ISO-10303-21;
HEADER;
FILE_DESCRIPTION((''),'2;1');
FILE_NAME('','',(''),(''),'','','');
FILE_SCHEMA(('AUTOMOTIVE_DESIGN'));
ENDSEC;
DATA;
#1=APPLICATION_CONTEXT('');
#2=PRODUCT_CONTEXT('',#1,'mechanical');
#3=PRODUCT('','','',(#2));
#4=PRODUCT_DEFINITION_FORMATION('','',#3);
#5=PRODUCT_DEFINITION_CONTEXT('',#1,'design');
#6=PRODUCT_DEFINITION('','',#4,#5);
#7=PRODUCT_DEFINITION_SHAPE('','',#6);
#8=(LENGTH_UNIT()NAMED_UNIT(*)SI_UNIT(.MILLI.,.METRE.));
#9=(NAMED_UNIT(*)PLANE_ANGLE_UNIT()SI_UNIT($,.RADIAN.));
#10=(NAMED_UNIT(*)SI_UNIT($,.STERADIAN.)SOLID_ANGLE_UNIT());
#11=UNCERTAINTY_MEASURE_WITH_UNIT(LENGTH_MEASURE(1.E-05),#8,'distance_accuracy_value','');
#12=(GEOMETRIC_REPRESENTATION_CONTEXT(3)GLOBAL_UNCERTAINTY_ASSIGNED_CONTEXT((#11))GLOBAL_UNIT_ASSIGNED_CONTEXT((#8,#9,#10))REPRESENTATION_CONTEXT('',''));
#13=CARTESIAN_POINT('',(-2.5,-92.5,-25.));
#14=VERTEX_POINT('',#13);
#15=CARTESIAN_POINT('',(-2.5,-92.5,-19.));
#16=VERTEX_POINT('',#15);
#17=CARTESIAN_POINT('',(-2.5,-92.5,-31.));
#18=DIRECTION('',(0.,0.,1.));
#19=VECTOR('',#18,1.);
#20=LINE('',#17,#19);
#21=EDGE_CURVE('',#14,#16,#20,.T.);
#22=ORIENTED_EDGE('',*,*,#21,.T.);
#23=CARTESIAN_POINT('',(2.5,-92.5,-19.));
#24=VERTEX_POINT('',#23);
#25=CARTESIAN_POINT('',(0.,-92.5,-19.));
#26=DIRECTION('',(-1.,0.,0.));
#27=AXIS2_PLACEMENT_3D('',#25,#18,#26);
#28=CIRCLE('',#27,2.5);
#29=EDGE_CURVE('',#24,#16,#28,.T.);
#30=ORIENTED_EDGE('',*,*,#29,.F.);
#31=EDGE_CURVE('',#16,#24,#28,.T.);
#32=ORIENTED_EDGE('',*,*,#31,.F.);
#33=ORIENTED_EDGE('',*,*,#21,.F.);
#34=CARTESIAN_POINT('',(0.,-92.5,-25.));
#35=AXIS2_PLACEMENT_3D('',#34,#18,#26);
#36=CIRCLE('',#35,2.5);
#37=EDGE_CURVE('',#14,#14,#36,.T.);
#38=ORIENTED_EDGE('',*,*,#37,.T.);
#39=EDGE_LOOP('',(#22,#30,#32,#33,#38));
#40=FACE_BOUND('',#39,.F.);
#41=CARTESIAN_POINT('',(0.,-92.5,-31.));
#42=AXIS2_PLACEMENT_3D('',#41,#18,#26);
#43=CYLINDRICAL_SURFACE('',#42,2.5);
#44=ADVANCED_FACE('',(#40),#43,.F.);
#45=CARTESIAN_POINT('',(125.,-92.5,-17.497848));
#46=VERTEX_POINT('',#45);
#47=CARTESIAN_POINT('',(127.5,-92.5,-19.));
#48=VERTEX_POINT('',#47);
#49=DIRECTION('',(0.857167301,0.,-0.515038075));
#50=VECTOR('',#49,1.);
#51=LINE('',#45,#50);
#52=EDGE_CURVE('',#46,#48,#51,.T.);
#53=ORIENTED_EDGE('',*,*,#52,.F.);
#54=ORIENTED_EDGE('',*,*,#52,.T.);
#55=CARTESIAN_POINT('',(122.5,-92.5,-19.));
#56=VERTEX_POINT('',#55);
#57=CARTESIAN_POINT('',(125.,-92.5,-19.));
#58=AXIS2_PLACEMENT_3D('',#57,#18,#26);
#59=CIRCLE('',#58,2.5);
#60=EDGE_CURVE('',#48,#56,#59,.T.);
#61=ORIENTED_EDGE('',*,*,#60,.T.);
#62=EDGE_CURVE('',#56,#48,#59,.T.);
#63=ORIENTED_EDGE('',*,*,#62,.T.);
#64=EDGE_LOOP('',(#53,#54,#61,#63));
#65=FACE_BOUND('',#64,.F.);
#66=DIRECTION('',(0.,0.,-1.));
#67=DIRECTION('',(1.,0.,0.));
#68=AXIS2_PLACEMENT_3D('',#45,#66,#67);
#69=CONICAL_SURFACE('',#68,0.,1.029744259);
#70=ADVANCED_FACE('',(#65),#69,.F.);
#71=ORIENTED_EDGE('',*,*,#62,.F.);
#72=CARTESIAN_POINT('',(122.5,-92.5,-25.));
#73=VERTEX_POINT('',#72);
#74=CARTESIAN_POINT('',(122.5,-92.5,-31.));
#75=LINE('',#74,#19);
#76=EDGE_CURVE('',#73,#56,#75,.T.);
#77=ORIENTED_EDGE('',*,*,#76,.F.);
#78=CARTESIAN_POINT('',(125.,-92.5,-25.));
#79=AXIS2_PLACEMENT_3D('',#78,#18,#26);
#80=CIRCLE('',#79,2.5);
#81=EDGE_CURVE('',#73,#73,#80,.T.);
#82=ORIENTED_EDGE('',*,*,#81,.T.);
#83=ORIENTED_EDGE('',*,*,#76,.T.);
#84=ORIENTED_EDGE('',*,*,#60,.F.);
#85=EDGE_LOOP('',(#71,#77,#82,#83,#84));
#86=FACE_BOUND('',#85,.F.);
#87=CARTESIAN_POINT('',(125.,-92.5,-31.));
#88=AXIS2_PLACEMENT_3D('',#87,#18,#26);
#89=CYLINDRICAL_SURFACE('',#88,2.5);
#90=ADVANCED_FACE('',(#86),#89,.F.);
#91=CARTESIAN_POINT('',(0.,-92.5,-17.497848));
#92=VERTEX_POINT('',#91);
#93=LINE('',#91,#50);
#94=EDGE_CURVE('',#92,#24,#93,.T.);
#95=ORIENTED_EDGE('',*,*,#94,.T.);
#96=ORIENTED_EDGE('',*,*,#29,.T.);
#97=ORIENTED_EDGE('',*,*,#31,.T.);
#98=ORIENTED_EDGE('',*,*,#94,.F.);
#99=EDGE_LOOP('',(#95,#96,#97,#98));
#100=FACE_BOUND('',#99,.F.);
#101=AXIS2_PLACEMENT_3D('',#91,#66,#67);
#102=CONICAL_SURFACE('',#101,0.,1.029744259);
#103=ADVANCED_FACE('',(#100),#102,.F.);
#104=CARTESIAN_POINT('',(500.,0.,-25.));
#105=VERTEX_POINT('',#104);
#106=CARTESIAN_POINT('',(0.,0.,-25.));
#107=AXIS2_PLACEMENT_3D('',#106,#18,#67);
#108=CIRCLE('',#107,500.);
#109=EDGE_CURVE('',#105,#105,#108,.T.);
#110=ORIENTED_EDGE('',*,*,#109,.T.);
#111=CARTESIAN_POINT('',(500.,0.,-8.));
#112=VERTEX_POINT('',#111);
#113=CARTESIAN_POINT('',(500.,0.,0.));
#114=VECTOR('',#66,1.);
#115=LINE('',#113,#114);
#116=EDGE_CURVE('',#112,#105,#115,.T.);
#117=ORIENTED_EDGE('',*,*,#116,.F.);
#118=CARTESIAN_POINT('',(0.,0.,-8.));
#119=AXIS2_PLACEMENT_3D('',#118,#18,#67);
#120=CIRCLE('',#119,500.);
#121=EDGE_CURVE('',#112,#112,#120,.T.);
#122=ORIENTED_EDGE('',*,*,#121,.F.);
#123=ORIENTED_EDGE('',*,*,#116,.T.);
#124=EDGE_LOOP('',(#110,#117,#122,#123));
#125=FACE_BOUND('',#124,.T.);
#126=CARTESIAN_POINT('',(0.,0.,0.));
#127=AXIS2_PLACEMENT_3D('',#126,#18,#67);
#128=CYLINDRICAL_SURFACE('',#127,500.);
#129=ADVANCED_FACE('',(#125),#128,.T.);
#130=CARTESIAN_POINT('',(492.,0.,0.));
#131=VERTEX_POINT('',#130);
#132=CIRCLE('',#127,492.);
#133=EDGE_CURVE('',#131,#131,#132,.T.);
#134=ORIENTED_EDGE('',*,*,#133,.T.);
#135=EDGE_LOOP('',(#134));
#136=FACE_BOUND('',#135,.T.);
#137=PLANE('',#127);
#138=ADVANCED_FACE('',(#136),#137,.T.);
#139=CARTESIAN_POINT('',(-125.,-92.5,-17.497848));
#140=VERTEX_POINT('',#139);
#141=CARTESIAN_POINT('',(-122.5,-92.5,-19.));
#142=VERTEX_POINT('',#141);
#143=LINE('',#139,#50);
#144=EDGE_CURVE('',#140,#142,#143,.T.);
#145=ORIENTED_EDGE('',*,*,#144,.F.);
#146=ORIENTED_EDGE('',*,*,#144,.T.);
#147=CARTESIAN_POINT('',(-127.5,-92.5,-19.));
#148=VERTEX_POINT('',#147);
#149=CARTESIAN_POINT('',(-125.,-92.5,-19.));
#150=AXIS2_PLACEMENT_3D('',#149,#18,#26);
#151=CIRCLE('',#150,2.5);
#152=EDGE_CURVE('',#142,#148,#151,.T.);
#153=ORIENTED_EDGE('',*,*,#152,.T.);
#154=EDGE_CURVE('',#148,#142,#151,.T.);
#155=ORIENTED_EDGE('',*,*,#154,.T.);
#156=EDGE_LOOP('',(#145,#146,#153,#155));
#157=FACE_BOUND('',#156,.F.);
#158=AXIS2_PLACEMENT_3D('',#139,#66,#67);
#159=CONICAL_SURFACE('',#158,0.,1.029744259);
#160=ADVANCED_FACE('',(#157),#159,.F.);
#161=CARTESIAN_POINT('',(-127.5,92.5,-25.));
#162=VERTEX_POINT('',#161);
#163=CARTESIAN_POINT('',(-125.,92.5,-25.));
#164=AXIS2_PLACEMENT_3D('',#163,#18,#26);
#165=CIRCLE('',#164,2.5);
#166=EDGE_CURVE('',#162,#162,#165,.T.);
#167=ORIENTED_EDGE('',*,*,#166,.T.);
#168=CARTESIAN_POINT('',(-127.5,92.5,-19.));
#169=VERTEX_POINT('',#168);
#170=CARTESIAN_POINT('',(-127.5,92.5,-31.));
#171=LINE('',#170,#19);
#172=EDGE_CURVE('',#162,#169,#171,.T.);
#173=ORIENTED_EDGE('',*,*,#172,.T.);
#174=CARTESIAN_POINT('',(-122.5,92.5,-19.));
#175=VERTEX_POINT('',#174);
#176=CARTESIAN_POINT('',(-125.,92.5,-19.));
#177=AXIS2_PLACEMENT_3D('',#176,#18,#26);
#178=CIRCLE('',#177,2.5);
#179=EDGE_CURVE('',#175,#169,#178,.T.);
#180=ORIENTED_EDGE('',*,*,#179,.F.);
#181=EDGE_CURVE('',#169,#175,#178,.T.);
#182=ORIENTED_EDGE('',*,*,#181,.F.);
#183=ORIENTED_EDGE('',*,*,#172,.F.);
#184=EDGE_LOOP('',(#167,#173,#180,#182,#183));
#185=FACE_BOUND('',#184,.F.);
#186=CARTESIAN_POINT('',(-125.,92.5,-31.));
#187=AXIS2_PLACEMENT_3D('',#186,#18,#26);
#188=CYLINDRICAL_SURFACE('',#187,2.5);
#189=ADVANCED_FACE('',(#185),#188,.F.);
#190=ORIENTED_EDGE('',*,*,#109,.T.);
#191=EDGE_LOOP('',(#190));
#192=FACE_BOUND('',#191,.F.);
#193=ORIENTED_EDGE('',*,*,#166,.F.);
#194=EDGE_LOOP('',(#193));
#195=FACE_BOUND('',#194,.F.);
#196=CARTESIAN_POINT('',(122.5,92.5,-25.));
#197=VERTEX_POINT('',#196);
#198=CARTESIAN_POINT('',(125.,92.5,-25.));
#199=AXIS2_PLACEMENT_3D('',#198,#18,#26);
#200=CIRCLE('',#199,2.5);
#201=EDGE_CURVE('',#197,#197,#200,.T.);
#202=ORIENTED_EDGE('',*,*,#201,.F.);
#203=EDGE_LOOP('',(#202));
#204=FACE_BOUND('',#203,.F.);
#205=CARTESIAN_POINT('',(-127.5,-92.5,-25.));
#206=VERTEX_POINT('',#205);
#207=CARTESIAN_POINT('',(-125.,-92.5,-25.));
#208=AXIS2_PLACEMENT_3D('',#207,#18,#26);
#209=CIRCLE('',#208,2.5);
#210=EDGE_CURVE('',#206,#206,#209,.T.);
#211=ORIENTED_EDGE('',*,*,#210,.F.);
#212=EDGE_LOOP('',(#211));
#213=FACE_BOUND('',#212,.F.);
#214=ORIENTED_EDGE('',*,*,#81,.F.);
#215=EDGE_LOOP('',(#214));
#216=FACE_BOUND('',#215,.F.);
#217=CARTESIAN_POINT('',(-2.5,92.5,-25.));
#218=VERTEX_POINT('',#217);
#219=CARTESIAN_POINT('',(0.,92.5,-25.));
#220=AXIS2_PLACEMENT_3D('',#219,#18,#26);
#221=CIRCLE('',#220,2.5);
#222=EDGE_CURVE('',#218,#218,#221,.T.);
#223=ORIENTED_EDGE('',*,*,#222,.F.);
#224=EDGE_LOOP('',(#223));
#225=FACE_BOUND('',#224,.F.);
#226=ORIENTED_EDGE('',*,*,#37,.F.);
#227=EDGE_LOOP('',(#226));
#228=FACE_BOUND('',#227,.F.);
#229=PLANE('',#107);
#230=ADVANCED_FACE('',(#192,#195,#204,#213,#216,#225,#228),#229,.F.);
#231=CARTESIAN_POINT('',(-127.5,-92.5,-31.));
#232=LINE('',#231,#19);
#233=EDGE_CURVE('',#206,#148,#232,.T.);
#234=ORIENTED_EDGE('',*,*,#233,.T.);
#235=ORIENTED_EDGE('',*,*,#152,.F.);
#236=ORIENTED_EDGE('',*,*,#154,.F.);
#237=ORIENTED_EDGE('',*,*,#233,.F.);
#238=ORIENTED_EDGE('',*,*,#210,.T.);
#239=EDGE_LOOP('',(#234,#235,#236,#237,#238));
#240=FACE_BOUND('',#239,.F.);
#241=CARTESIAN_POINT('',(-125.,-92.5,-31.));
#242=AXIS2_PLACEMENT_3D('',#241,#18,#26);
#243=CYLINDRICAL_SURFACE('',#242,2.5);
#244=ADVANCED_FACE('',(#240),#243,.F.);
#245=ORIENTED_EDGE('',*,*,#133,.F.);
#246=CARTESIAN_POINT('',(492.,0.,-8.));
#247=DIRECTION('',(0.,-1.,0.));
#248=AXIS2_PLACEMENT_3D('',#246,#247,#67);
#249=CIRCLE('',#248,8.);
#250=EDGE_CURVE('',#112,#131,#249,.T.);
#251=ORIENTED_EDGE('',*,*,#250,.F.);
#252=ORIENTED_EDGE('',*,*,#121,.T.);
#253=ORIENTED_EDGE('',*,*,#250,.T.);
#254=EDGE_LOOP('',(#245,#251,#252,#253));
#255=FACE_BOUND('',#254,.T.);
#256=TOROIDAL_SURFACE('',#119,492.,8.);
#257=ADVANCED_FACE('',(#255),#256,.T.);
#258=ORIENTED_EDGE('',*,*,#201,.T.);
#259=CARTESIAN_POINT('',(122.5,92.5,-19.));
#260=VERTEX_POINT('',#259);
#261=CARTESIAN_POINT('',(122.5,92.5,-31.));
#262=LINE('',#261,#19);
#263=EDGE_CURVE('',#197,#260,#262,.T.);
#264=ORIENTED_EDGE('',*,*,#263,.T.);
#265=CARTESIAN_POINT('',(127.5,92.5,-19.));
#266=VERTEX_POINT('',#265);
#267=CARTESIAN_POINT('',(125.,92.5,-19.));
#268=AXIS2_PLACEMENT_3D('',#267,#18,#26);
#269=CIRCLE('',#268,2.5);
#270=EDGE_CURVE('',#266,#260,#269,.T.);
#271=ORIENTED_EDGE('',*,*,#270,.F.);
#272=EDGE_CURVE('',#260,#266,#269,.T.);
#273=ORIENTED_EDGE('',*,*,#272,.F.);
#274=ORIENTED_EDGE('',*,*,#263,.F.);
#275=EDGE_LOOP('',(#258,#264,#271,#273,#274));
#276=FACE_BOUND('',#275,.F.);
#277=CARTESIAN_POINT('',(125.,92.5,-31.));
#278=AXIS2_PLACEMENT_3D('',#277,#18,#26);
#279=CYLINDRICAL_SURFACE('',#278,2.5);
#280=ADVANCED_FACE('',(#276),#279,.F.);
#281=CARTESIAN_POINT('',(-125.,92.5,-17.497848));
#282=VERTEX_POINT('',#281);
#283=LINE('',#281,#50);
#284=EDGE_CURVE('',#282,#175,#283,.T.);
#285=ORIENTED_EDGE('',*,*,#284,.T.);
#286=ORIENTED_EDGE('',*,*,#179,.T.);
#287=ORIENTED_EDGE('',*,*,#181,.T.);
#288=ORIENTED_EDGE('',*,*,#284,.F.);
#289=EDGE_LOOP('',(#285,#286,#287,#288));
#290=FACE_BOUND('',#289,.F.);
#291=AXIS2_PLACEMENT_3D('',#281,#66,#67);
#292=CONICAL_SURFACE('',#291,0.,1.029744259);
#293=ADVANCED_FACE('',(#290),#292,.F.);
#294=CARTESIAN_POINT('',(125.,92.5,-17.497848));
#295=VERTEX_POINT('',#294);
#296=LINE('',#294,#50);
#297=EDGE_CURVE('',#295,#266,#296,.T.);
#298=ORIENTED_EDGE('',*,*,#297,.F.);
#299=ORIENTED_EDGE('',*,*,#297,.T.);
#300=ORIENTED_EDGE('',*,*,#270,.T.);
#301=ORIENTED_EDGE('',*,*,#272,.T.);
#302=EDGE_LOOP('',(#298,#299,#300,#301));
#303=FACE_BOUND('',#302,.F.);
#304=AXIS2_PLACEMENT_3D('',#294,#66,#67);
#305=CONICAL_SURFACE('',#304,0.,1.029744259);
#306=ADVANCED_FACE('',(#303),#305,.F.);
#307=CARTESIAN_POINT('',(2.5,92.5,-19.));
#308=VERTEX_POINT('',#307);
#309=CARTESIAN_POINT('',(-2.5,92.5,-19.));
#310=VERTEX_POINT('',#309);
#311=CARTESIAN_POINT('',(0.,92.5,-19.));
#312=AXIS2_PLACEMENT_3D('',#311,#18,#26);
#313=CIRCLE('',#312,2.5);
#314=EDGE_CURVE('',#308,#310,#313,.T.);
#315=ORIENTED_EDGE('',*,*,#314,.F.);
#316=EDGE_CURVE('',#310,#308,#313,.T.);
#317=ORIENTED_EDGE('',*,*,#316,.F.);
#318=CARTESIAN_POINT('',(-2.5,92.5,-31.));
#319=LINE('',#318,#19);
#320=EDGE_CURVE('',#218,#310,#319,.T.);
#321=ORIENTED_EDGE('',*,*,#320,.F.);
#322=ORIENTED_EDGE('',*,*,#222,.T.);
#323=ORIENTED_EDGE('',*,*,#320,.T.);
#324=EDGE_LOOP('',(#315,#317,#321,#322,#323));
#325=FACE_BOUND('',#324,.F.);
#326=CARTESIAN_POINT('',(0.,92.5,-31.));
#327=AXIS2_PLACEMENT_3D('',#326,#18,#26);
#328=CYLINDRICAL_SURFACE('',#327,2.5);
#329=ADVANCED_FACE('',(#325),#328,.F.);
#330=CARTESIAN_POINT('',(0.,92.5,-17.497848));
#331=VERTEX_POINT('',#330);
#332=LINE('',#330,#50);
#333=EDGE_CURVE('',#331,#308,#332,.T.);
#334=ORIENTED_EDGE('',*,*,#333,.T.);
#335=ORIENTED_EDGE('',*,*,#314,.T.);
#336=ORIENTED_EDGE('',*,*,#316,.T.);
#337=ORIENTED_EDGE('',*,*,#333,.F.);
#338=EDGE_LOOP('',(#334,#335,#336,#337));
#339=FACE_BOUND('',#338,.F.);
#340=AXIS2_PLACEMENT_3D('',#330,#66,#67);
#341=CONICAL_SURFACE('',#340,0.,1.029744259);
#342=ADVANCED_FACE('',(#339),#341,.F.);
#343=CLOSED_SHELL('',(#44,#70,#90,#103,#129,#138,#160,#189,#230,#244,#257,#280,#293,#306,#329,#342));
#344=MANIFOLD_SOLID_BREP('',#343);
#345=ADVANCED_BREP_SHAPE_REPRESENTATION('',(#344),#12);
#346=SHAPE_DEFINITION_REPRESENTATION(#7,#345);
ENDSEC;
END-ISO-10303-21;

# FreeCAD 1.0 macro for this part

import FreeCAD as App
import Part
import Sketcher
Q = App.Units.Quantity


def edges_at(feature, points):
    """Names of the edges that pass closest to the given points."""
    edges = feature.Shape.Edges
    near = lambda p: min(range(len(edges)), key=lambda i: edges[i].distToShape(Part.Vertex(*p))[0])
    return sorted({f"Edge{near(p) + 1}" for p in points})

doc = App.newDocument("Part")
body = doc.addObject("PartDesign::Body", "Body")

sketch1 = body.newObject("Sketcher::SketchObject", "Sketch")
sketch1.AttachmentSupport = (doc.getObject("XY_Plane"), [""])
sketch1.MapMode = "FlatFace"
sketch1.addGeometry(Part.Circle(App.Vector(0, 0, 0), App.Vector(0, 0, 1), 500), False)
sketch1.addConstraint([
    Sketcher.Constraint("Coincident", 0, 3, -1, 1),
    Sketcher.Constraint("Diameter", 0, Q("1000 mm")),
])
pad1 = body.newObject("PartDesign::Pad", "Pad")
pad1.Profile = sketch1
pad1.Length = 25
pad1.Reversed = True
doc.recompute()

fillet = body.newObject("PartDesign::Fillet", "Fillet")
fillet.Base = (pad1, edges_at(pad1, [(-500, 0, 0)]))
fillet.Radius = 8

sketch2 = body.newObject("Sketcher::SketchObject", "Sketch001")
sketch2.AttachmentSupport = (doc.getObject("XY_Plane"), [""])
sketch2.MapMode = "FlatFace"
sketch2.AttachmentOffset = App.Placement(App.Vector(0, 0, -25), App.Rotation())
sketch2.addGeometry([
    Part.Circle(App.Vector(-125, -92.5, 0), App.Vector(0, 0, 1), 2.5),
    Part.Circle(App.Vector(0, 92.5, 0), App.Vector(0, 0, 1), 2.5),
    Part.Circle(App.Vector(125, 92.5, 0), App.Vector(0, 0, 1), 2.5),
    Part.Circle(App.Vector(125, -92.5, 0), App.Vector(0, 0, 1), 2.5),
    Part.Circle(App.Vector(-125, 92.5, 0), App.Vector(0, 0, 1), 2.5),
    Part.Circle(App.Vector(0, -92.5, 0), App.Vector(0, 0, 1), 2.5),
], False)
sketch2.addConstraint([
    Sketcher.Constraint("Equal", 0, 1),
    Sketcher.Constraint("Equal", 1, 2),
    Sketcher.Constraint("Equal", 2, 3),
    Sketcher.Constraint("Equal", 3, 4),
    Sketcher.Constraint("Equal", 4, 5),
    Sketcher.Constraint("Symmetric", 0, 3, 2, 3, -1, 1),
    Sketcher.Constraint("Symmetric", 3, 3, 4, 3, -1, 1),
    Sketcher.Constraint("Symmetric", 1, 3, 5, 3, -1, 1),
    Sketcher.Constraint("Symmetric", 0, 3, 3, 3, -2),
    Sketcher.Constraint("PointOnObject", 1, 3, -2),
    Sketcher.Constraint("Horizontal", 1, 3, 2, 3),
    Sketcher.Constraint("Diameter", 0, Q("5 mm")),
    Sketcher.Constraint("DistanceX", 0, 3, -1, 1, Q("125 mm")),
    Sketcher.Constraint("DistanceY", 0, 3, 1, 3, Q("185 mm")),
])
doc.recompute()
hole = body.newObject("PartDesign::Hole", "Hole")
hole.Profile = sketch2
hole.ThreadType = "None"
hole.Diameter = 5
hole.DepthType = "Dimension"
hole.Depth = 6
hole.DrillPoint = "Angled"
hole.DrillPointAngle = 118
hole.Reversed = True

doc.recompute()
